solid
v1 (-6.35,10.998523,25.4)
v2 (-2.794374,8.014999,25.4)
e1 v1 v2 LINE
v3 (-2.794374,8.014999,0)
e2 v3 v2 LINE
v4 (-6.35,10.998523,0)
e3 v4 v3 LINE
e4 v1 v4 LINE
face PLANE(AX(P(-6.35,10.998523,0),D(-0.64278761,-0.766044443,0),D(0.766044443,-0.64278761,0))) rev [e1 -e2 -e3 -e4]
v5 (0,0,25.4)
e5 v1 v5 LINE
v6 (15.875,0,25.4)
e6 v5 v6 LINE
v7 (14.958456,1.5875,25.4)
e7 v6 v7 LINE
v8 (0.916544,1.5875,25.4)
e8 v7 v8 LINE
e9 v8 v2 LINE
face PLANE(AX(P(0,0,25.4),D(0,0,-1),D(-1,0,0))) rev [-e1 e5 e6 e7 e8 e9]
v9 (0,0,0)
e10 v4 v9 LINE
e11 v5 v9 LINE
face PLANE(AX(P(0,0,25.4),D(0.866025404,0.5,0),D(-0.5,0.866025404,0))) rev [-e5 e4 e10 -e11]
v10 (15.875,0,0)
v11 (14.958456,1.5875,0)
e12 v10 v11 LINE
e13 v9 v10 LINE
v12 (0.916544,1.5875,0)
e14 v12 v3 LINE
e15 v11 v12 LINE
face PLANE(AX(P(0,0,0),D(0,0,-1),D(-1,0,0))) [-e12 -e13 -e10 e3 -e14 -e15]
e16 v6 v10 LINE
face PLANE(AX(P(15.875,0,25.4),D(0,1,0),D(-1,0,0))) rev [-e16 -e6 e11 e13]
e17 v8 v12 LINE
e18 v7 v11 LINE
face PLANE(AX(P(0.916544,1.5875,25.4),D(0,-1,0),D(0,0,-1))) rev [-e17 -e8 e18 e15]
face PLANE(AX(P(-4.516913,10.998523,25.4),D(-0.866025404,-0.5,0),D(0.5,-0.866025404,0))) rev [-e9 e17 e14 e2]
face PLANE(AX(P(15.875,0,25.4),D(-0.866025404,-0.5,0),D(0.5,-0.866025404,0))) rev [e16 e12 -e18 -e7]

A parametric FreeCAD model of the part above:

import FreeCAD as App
import Part
import Sketcher

V = App.Vector
Q = App.Units.Quantity


def add_polygon(sketch, points):
    """Adds a closed chain of lines whose ends are joined by coincident constraints."""
    first, n = sketch.GeometryCount, len(points)
    for a, b in zip(points, points[1:] + points[:1]):
        sketch.addGeometry(Part.LineSegment(App.Vector(*a, 0), App.Vector(*b, 0)), False)
    for i in range(n):
        sketch.addConstraint(Sketcher.Constraint("Coincident", first + i, 2, first + (i + 1) % n, 1))

doc = App.newDocument("Part")
body = doc.addObject("PartDesign::Body", "Body")

# Sketch on XY plane
sketch1 = doc.addObject("Sketcher::SketchObject", "Sketch")
body.addObject(sketch1)
sketch1.AttachmentSupport = (doc.XY_Plane, [""])
sketch1.MapMode = "FlatFace"
add_polygon(sketch1, [(-6.3, 11), (0, 0), (15.9, 0), (15, 1.6), (0.9, 1.6), (-4.5, 11)])  # lines 0-5
sketch1.addConstraint([
    Sketcher.Constraint("Horizontal", 1),
    Sketcher.Constraint("Horizontal", 3),
    Sketcher.Constraint("Horizontal", 5),
    Sketcher.Constraint("Coincident", 0, 2, -1, 1),
    Sketcher.Constraint("Parallel", 0, 2),
    Sketcher.Constraint("Parallel", 2, 4),
    Sketcher.Constraint("Angle", 0, Q("-60 deg")),
    Sketcher.Constraint("Distance", 0, Q("0.5 in")),
    Sketcher.Constraint("DistanceX", 1, 1, 1, 2, Q("0.625 in")),
    Sketcher.Constraint("DistanceY", -1, 1, 2, 2, Q("0.0625 in")),
    Sketcher.Constraint("DistanceX", 3, 2, 3, 1, Q("14.041913 mm")),
])
pad1 = doc.addObject("PartDesign::Pad", "Pad")
body.addObject(pad1)
pad1.Profile = sketch1
pad1.Length = Q("1 in")

# Sketch on XY plane
sketch2 = doc.addObject("Sketcher::SketchObject", "Sketch001")
body.addObject(sketch2)
sketch2.AttachmentSupport = (doc.XY_Plane, [""])
sketch2.MapMode = "FlatFace"
sketch2.AttachmentOffset = App.Placement(V(0, 0, 1 * 25.4), App.Rotation())
add_polygon(sketch2, [(-6.3, 11), (-2.8, 8), (-4.5, 11)])  # lines 0-2
sketch2.addConstraint([
    Sketcher.Constraint("Horizontal", 2),
    Sketcher.Constraint("Angle", 0, Q("-40 deg")),
    Sketcher.Constraint("Angle", 1, Q("120 deg")),
    Sketcher.Constraint("DistanceX", 2, 2, -1, 1, Q("0.25 in")),
    Sketcher.Constraint("DistanceY", -1, 1, 0, 2, Q("8.014999 mm")),
    Sketcher.Constraint("Distance", 0, Q("4.641539 mm")),
])
pocket1 = doc.addObject("PartDesign::Pocket", "Pocket")
body.addObject(pocket1)
pocket1.Profile = sketch2
pocket1.Type = "ThroughAll"

doc.recompute()
